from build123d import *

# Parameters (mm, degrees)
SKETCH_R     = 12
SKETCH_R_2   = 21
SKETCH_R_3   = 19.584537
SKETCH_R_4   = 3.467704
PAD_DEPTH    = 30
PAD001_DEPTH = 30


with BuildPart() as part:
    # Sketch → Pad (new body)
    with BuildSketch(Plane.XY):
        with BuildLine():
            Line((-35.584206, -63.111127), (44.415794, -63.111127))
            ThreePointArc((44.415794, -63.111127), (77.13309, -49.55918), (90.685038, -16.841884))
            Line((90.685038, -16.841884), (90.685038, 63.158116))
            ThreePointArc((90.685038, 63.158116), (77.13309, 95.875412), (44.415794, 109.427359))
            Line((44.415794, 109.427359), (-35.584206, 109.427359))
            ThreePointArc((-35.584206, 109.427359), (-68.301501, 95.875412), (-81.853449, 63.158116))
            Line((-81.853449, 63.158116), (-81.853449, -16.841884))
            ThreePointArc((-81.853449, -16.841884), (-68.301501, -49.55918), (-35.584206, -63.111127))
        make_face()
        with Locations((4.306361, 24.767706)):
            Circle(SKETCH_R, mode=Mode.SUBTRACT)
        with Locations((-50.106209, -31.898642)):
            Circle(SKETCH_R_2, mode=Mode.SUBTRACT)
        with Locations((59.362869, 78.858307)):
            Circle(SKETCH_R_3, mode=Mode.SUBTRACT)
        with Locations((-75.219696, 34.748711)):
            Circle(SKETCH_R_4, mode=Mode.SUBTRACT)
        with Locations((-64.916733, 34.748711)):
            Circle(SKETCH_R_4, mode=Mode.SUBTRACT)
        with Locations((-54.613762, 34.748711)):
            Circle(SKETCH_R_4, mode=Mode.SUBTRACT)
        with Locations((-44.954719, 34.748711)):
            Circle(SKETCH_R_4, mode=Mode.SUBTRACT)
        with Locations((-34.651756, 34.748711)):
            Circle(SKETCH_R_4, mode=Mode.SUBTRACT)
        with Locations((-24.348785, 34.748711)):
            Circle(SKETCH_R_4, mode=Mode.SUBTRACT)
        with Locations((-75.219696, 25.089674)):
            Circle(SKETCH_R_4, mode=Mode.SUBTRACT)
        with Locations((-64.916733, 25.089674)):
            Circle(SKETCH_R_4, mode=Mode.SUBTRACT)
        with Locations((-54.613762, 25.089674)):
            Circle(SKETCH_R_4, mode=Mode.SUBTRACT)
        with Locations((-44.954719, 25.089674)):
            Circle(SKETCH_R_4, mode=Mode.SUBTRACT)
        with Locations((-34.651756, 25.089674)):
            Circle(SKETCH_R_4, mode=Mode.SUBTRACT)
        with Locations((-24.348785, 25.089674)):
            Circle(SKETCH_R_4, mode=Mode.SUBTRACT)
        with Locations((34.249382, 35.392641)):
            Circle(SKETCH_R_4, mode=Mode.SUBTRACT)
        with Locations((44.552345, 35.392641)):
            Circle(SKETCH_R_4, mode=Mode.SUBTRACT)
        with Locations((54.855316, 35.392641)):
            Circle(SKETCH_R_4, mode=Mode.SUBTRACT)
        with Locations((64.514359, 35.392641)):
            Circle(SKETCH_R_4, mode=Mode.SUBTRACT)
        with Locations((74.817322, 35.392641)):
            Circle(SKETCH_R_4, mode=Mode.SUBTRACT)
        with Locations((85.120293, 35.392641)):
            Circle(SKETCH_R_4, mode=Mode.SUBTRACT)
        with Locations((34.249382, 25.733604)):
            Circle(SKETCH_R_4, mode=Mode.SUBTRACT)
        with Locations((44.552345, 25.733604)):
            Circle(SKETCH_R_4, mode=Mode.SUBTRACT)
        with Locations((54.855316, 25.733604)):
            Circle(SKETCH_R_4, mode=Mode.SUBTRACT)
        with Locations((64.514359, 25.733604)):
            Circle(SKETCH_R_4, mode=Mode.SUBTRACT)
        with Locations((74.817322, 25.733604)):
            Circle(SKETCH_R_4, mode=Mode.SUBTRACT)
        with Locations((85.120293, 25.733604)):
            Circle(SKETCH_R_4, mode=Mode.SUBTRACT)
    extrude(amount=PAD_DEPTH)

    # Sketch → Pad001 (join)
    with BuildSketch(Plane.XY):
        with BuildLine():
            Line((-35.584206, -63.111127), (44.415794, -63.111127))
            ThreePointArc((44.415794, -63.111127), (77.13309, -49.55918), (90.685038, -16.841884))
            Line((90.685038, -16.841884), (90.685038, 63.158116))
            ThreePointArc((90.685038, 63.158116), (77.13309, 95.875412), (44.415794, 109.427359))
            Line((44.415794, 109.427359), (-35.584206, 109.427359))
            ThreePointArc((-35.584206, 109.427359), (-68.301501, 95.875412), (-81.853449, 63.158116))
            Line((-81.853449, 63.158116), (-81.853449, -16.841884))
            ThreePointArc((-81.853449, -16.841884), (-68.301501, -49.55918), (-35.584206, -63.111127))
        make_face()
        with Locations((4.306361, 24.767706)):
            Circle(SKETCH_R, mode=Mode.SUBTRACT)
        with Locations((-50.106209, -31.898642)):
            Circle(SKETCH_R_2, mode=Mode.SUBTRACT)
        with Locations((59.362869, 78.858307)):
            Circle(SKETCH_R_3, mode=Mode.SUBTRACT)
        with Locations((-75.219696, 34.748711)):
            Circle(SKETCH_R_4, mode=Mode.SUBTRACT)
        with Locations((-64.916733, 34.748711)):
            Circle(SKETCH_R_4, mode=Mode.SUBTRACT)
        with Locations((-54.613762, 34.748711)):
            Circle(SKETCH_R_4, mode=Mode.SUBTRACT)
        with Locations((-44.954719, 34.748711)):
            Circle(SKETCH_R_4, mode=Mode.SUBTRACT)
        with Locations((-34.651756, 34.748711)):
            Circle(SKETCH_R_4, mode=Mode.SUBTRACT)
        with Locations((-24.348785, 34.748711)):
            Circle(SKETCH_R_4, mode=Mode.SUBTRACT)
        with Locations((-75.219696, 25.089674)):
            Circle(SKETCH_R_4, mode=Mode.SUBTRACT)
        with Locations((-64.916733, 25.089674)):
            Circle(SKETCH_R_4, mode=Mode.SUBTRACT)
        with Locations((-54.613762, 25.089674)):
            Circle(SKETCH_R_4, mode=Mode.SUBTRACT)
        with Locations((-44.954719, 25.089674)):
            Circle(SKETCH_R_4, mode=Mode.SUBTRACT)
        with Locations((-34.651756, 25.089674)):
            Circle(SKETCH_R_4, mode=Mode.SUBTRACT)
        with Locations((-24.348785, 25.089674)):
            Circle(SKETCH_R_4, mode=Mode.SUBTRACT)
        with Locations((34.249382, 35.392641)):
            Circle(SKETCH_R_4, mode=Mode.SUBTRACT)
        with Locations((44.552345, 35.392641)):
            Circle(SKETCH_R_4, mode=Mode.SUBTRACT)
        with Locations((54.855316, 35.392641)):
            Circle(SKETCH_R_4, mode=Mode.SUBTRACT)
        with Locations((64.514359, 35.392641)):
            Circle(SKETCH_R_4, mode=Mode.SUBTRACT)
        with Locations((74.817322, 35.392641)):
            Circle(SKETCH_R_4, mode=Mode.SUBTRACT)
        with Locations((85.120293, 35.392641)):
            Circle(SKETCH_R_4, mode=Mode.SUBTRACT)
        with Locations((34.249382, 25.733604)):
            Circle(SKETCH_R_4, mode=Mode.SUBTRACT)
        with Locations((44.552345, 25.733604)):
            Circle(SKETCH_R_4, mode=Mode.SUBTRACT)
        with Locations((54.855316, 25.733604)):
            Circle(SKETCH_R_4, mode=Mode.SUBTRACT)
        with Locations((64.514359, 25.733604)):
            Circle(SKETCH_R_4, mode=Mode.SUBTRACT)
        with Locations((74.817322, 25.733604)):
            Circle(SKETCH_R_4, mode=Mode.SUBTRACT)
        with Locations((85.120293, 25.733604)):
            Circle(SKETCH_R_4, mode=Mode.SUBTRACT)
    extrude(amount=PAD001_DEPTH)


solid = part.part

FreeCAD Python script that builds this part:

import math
import FreeCAD as App
import Part
import Sketcher
from FreeCAD import Vector
Q = App.Units.Quantity

doc = App.newDocument("Part")
body = doc.addObject("PartDesign::Body", "Body")

# Sketch on XY plane
sketch1 = body.newObject("Sketcher::SketchObject", "Sketch")
sketch1.AttachmentSupport = (doc.getObject("XY_Plane"), [""])
sketch1.MapMode = "FlatFace"
sketch1.addGeometry([
    Part.LineSegment(Vector(-35.584206, -63.111127, 0), Vector(44.415794, -63.111127, 0)),  # 0
    Part.ArcOfCircle(Part.Circle(Vector(44.415795, -16.841884, 0), Vector(0, 0, 1), 46.269243), math.radians(-90.000001), math.radians(0)),  # 1
    Part.LineSegment(Vector(90.685038, -16.841884, 0), Vector(90.685038, 63.158116, 0)),  # 2
    Part.ArcOfCircle(Part.Circle(Vector(44.415795, 63.158116, 0), Vector(0, 0, 1), 46.269243), math.radians(0), math.radians(90.000001)),  # 3
    Part.LineSegment(Vector(44.415794, 109.427359, 0), Vector(-35.584206, 109.427359, 0)),  # 4
    Part.ArcOfCircle(Part.Circle(Vector(-35.584206, 63.158116, 0), Vector(0, 0, 1), 46.269243), math.radians(90), math.radians(180)),  # 5
    Part.LineSegment(Vector(-81.853449, 63.158116, 0), Vector(-81.853449, -16.841884, 0)),  # 6
    Part.ArcOfCircle(Part.Circle(Vector(-35.584206, -16.841884, 0), Vector(0, 0, 1), 46.269243), math.radians(180), math.radians(270)),  # 7
    Part.Circle(Vector(-50.106209, -31.898642, 0), Vector(0, 0, 1), 21),  # 8
    Part.Circle(Vector(-75.219696, 25.089674, 0), Vector(0, 0, 1), 3.467704),  # 9
    Part.Circle(Vector(-64.916733, 25.089674, 0), Vector(0, 0, 1), 3.467704),  # 10
    Part.Circle(Vector(-75.219696, 34.748711, 0), Vector(0, 0, 1), 3.467704),  # 11
    Part.Circle(Vector(-64.916733, 34.748711, 0), Vector(0, 0, 1), 3.467704),  # 12
    Part.Circle(Vector(-54.613762, 25.089674, 0), Vector(0, 0, 1), 3.467704),  # 13
    Part.Circle(Vector(-44.954719, 25.089674, 0), Vector(0, 0, 1), 3.467704),  # 14
    Part.Circle(Vector(-54.613762, 34.748711, 0), Vector(0, 0, 1), 3.467704),  # 15
    Part.Circle(Vector(-44.954719, 34.748711, 0), Vector(0, 0, 1), 3.467704),  # 16
    Part.Circle(Vector(-34.651756, 25.089674, 0), Vector(0, 0, 1), 3.467704),  # 17
    Part.Circle(Vector(-24.348785, 25.089674, 0), Vector(0, 0, 1), 3.467704),  # 18
    Part.Circle(Vector(-34.651756, 34.748711, 0), Vector(0, 0, 1), 3.467704),  # 19
    Part.Circle(Vector(-24.348785, 34.748711, 0), Vector(0, 0, 1), 3.467704),  # 20
    Part.Circle(Vector(4.306361, 24.767706, 0), Vector(0, 0, 1), 12),  # 21
    Part.Circle(Vector(34.249382, 25.733604, 0), Vector(0, 0, 1), 3.467704),  # 22
    Part.Circle(Vector(44.552345, 25.733604, 0), Vector(0, 0, 1), 3.467704),  # 23
    Part.Circle(Vector(34.249382, 35.392641, 0), Vector(0, 0, 1), 3.467704),  # 24
    Part.Circle(Vector(44.552345, 35.392641, 0), Vector(0, 0, 1), 3.467704),  # 25
    Part.Circle(Vector(54.855316, 25.733604, 0), Vector(0, 0, 1), 3.467704),  # 26
    Part.Circle(Vector(64.514359, 25.733604, 0), Vector(0, 0, 1), 3.467704),  # 27
    Part.Circle(Vector(54.855316, 35.392641, 0), Vector(0, 0, 1), 3.467704),  # 28
    Part.Circle(Vector(64.514359, 35.392641, 0), Vector(0, 0, 1), 3.467704),  # 29
    Part.Circle(Vector(74.817322, 25.733604, 0), Vector(0, 0, 1), 3.467704),  # 30
    Part.Circle(Vector(85.120293, 25.733604, 0), Vector(0, 0, 1), 3.467704),  # 31
    Part.Circle(Vector(74.817322, 35.392641, 0), Vector(0, 0, 1), 3.467704),  # 32
    Part.Circle(Vector(85.120293, 35.392641, 0), Vector(0, 0, 1), 3.467704),  # 33
    Part.Circle(Vector(59.362869, 78.858307, 0), Vector(0, 0, 1), 19.584537),  # 34
], False)
sketch1.addConstraint([
    Sketcher.Constraint("Tangent", 0, 2, 1, 1),
    Sketcher.Constraint("Tangent", 1, 2, 2, 1),
    Sketcher.Constraint("Tangent", 2, 2, 3, 1),
    Sketcher.Constraint("Tangent", 3, 2, 4, 1),
    Sketcher.Constraint("Tangent", 4, 2, 5, 1),
    Sketcher.Constraint("Tangent", 5, 2, 6, 1),
    Sketcher.Constraint("Tangent", 6, 2, 7, 1),
    Sketcher.Constraint("Tangent", 7, 2, 0, 1),
    Sketcher.Constraint("Horizontal", 0),
    Sketcher.Constraint("Vertical", 2),
    Sketcher.Constraint("Horizontal", 4),
    Sketcher.Constraint("Vertical", 6),
    Sketcher.Constraint("Equal", 1, 3),
    Sketcher.Constraint("Equal", 3, 5),
    Sketcher.Constraint("Equal", 5, 7),
    Sketcher.Constraint("Equal", 9, 10),
    Sketcher.Constraint("Equal", 10, 11),
    Sketcher.Constraint("Equal", 11, 12),
    Sketcher.Constraint("Equal", 12, 13),
    Sketcher.Constraint("Equal", 13, 14),
    Sketcher.Constraint("Equal", 14, 15),
    Sketcher.Constraint("Equal", 15, 16),
    Sketcher.Constraint("Equal", 16, 17),
    Sketcher.Constraint("Equal", 17, 18),
    Sketcher.Constraint("Equal", 18, 19),
    Sketcher.Constraint("Equal", 19, 20),
    Sketcher.Constraint("Equal", 20, 22),
    Sketcher.Constraint("Equal", 22, 23),
    Sketcher.Constraint("Equal", 23, 24),
    Sketcher.Constraint("Equal", 24, 25),
    Sketcher.Constraint("Equal", 25, 26),
    Sketcher.Constraint("Equal", 26, 27),
    Sketcher.Constraint("Equal", 27, 28),
    Sketcher.Constraint("Equal", 28, 29),
    Sketcher.Constraint("Equal", 29, 30),
    Sketcher.Constraint("Equal", 30, 31),
    Sketcher.Constraint("Equal", 31, 32),
    Sketcher.Constraint("Equal", 32, 33),
    Sketcher.Constraint("Horizontal", 9, 3, 10, 3),
    Sketcher.Constraint("Horizontal", 11, 3, 12, 3),
    Sketcher.Constraint("Horizontal", 10, 3, 13, 3),
    Sketcher.Constraint("Horizontal", 13, 3, 14, 3),
    Sketcher.Constraint("Horizontal", 12, 3, 15, 3),
    Sketcher.Constraint("Horizontal", 15, 3, 16, 3),
    Sketcher.Constraint("Horizontal", 14, 3, 17, 3),
    Sketcher.Constraint("Horizontal", 17, 3, 18, 3),
    Sketcher.Constraint("Horizontal", 16, 3, 19, 3),
    Sketcher.Constraint("Horizontal", 19, 3, 20, 3),
    Sketcher.Constraint("Horizontal", 22, 3, 23, 3),
    Sketcher.Constraint("Horizontal", 24, 3, 25, 3),
    Sketcher.Constraint("Horizontal", 23, 3, 26, 3),
    Sketcher.Constraint("Horizontal", 26, 3, 27, 3),
    Sketcher.Constraint("Horizontal", 25, 3, 28, 3),
    Sketcher.Constraint("Horizontal", 28, 3, 29, 3),
    Sketcher.Constraint("Horizontal", 27, 3, 30, 3),
    Sketcher.Constraint("Horizontal", 30, 3, 31, 3),
    Sketcher.Constraint("Horizontal", 29, 3, 32, 3),
    Sketcher.Constraint("Horizontal", 32, 3, 33, 3),
    Sketcher.Constraint("Vertical", 9, 3, 11, 3),
    Sketcher.Constraint("Vertical", 10, 3, 12, 3),
    Sketcher.Constraint("Vertical", 13, 3, 15, 3),
    Sketcher.Constraint("Vertical", 14, 3, 16, 3),
    Sketcher.Constraint("Vertical", 17, 3, 19, 3),
    Sketcher.Constraint("Vertical", 18, 3, 20, 3),
    Sketcher.Constraint("Vertical", 22, 3, 24, 3),
    Sketcher.Constraint("Vertical", 23, 3, 25, 3),
    Sketcher.Constraint("Vertical", 26, 3, 28, 3),
    Sketcher.Constraint("Vertical", 27, 3, 29, 3),
    Sketcher.Constraint("Vertical", 30, 3, 32, 3),
    Sketcher.Constraint("Vertical", 31, 3, 33, 3),
    Sketcher.Constraint("Equal", 4, 2),
    Sketcher.Constraint("Diameter", 8, Q("42 mm")),
    Sketcher.Constraint("Diameter", 21, Q("24 mm")),
    Sketcher.Constraint("DistanceX", 0, 1, 0, 2, Q("80 mm")),
    Sketcher.Constraint("Diameter", 9, Q("6.935408 mm")),
    Sketcher.Constraint("Diameter", 34, Q("39.169074 mm")),
    Sketcher.Constraint("Radius", 1, Q("46.269243 mm")),
    Sketcher.Constraint("DistanceY", 7, 2, 17, 3, Q("88.200801 mm")),
    Sketcher.Constraint("DistanceX", 8, 3, -1, 1, Q("50.106209 mm")),
    Sketcher.Constraint("DistanceY", 8, 3, -1, 1, Q("31.898642 mm")),
    Sketcher.Constraint("DistanceY", -1, 1, 11, 3, Q("34.748711 mm")),
    Sketcher.Constraint("DistanceX", 14, 3, -1, 1, Q("44.954719 mm")),
    Sketcher.Constraint("DistanceX", -1, 1, 21, 3, Q("4.306361 mm")),
    Sketcher.Constraint("DistanceX", -1, 1, 22, 3, Q("34.249382 mm")),
    Sketcher.Constraint("DistanceY", -1, 1, 24, 3, Q("35.392641 mm")),
    Sketcher.Constraint("DistanceX", -1, 1, 27, 3, Q("64.514359 mm")),
    Sketcher.Constraint("DistanceX", -1, 1, 34, 3, Q("59.362869 mm")),
    Sketcher.Constraint("DistanceX", -1, 1, 1, 2, Q("90.685038 mm")),
    Sketcher.Constraint("DistanceY", -1, 1, 3, 2, Q("109.427359 mm")),
    Sketcher.Constraint("DistanceX", 9, 3, 5, 3, Q("39.63549 mm")),
    Sketcher.Constraint("DistanceX", 10, 3, 3, 3, Q("109.332528 mm")),
    Sketcher.Constraint("DistanceX", 10, 3, 13, 3, Q("10.302971 mm")),
    Sketcher.Constraint("DistanceX", 17, 3, 18, 3, Q("10.302971 mm")),
    Sketcher.Constraint("DistanceY", 1, 3, 22, 3, Q("42.575488 mm")),
    Sketcher.Constraint("DistanceX", 3, 3, 23, 3, Q("0.13655 mm")),
    Sketcher.Constraint("DistanceX", 18, 3, 23, 3, Q("68.90113 mm")),
    Sketcher.Constraint("DistanceX", 23, 3, 26, 3, Q("10.302971 mm")),
    Sketcher.Constraint("DistanceX", 30, 3, 31, 3, Q("10.302971 mm")),
    Sketcher.Constraint("DistanceY", 3, 3, 34, 3, Q("15.700191 mm")),
    Sketcher.Constraint("DistanceY", -1, 1, 21, 3, Q("24.767706 mm")),
    Sketcher.Constraint("DistanceX", -1, 1, 30, 3, Q("74.817322 mm")),
])
pad1 = body.newObject("PartDesign::Pad", "Pad")
pad1.Profile = sketch1
pad1.Length = 30

# Sketch on XY plane
sketch2 = body.newObject("Sketcher::SketchObject", "Sketch001")
sketch2.AttachmentSupport = (doc.getObject("XY_Plane"), [""])
sketch2.MapMode = "FlatFace"
sketch2.addGeometry([
    Part.LineSegment(Vector(-35.584206, -63.111127, 0), Vector(44.415794, -63.111127, 0)),  # 0
    Part.ArcOfCircle(Part.Circle(Vector(44.415795, -16.841884, 0), Vector(0, 0, 1), 46.269243), math.radians(-90.000001), math.radians(0)),  # 1
    Part.LineSegment(Vector(90.685038, -16.841884, 0), Vector(90.685038, 63.158116, 0)),  # 2
    Part.ArcOfCircle(Part.Circle(Vector(44.415795, 63.158116, 0), Vector(0, 0, 1), 46.269243), math.radians(0), math.radians(90.000001)),  # 3
    Part.LineSegment(Vector(44.415794, 109.427359, 0), Vector(-35.584206, 109.427359, 0)),  # 4
    Part.ArcOfCircle(Part.Circle(Vector(-35.584206, 63.158116, 0), Vector(0, 0, 1), 46.269243), math.radians(90), math.radians(180)),  # 5
    Part.LineSegment(Vector(-81.853449, 63.158116, 0), Vector(-81.853449, -16.841884, 0)),  # 6
    Part.ArcOfCircle(Part.Circle(Vector(-35.584206, -16.841884, 0), Vector(0, 0, 1), 46.269243), math.radians(180), math.radians(270)),  # 7
    Part.Circle(Vector(-50.106209, -31.898642, 0), Vector(0, 0, 1), 21),  # 8
    Part.Circle(Vector(-75.219696, 25.089674, 0), Vector(0, 0, 1), 3.467704),  # 9
    Part.Circle(Vector(-64.916733, 25.089674, 0), Vector(0, 0, 1), 3.467704),  # 10
    Part.Circle(Vector(-75.219696, 34.748711, 0), Vector(0, 0, 1), 3.467704),  # 11
    Part.Circle(Vector(-64.916733, 34.748711, 0), Vector(0, 0, 1), 3.467704),  # 12
    Part.Circle(Vector(-54.613762, 25.089674, 0), Vector(0, 0, 1), 3.467704),  # 13
    Part.Circle(Vector(-44.954719, 25.089674, 0), Vector(0, 0, 1), 3.467704),  # 14
    Part.Circle(Vector(-54.613762, 34.748711, 0), Vector(0, 0, 1), 3.467704),  # 15
    Part.Circle(Vector(-44.954719, 34.748711, 0), Vector(0, 0, 1), 3.467704),  # 16
    Part.Circle(Vector(-34.651756, 25.089674, 0), Vector(0, 0, 1), 3.467704),  # 17
    Part.Circle(Vector(-24.348785, 25.089674, 0), Vector(0, 0, 1), 3.467704),  # 18
    Part.Circle(Vector(-34.651756, 34.748711, 0), Vector(0, 0, 1), 3.467704),  # 19
    Part.Circle(Vector(-24.348785, 34.748711, 0), Vector(0, 0, 1), 3.467704),  # 20
    Part.Circle(Vector(4.306361, 24.767706, 0), Vector(0, 0, 1), 12),  # 21
    Part.Circle(Vector(34.249382, 25.733604, 0), Vector(0, 0, 1), 3.467704),  # 22
    Part.Circle(Vector(44.552345, 25.733604, 0), Vector(0, 0, 1), 3.467704),  # 23
    Part.Circle(Vector(34.249382, 35.392641, 0), Vector(0, 0, 1), 3.467704),  # 24
    Part.Circle(Vector(44.552345, 35.392641, 0), Vector(0, 0, 1), 3.467704),  # 25
    Part.Circle(Vector(54.855316, 25.733604, 0), Vector(0, 0, 1), 3.467704),  # 26
    Part.Circle(Vector(64.514359, 25.733604, 0), Vector(0, 0, 1), 3.467704),  # 27
    Part.Circle(Vector(54.855316, 35.392641, 0), Vector(0, 0, 1), 3.467704),  # 28
    Part.Circle(Vector(64.514359, 35.392641, 0), Vector(0, 0, 1), 3.467704),  # 29
    Part.Circle(Vector(74.817322, 25.733604, 0), Vector(0, 0, 1), 3.467704),  # 30
    Part.Circle(Vector(85.120293, 25.733604, 0), Vector(0, 0, 1), 3.467704),  # 31
    Part.Circle(Vector(74.817322, 35.392641, 0), Vector(0, 0, 1), 3.467704),  # 32
    Part.Circle(Vector(85.120293, 35.392641, 0), Vector(0, 0, 1), 3.467704),  # 33
    Part.Circle(Vector(59.362869, 78.858307, 0), Vector(0, 0, 1), 19.584537),  # 34
], False)
sketch2.addConstraint([
    Sketcher.Constraint("Tangent", 0, 2, 1, 1),
    Sketcher.Constraint("Tangent", 1, 2, 2, 1),
    Sketcher.Constraint("Tangent", 2, 2, 3, 1),
    Sketcher.Constraint("Tangent", 3, 2, 4, 1),
    Sketcher.Constraint("Tangent", 4, 2, 5, 1),
    Sketcher.Constraint("Tangent", 5, 2, 6, 1),
    Sketcher.Constraint("Tangent", 6, 2, 7, 1),
    Sketcher.Constraint("Tangent", 7, 2, 0, 1),
    Sketcher.Constraint("Horizontal", 0),
    Sketcher.Constraint("Vertical", 2),
    Sketcher.Constraint("Horizontal", 4),
    Sketcher.Constraint("Vertical", 6),
    Sketcher.Constraint("Equal", 1, 3),
    Sketcher.Constraint("Equal", 3, 5),
    Sketcher.Constraint("Equal", 5, 7),
    Sketcher.Constraint("Equal", 9, 10),
    Sketcher.Constraint("Equal", 10, 11),
    Sketcher.Constraint("Equal", 11, 12),
    Sketcher.Constraint("Equal", 12, 13),
    Sketcher.Constraint("Equal", 13, 14),
    Sketcher.Constraint("Equal", 14, 15),
    Sketcher.Constraint("Equal", 15, 16),
    Sketcher.Constraint("Equal", 16, 17),
    Sketcher.Constraint("Equal", 17, 18),
    Sketcher.Constraint("Equal", 18, 19),
    Sketcher.Constraint("Equal", 19, 20),
    Sketcher.Constraint("Equal", 20, 22),
    Sketcher.Constraint("Equal", 22, 23),
    Sketcher.Constraint("Equal", 23, 24),
    Sketcher.Constraint("Equal", 24, 25),
    Sketcher.Constraint("Equal", 25, 26),
    Sketcher.Constraint("Equal", 26, 27),
    Sketcher.Constraint("Equal", 27, 28),
    Sketcher.Constraint("Equal", 28, 29),
    Sketcher.Constraint("Equal", 29, 30),
    Sketcher.Constraint("Equal", 30, 31),
    Sketcher.Constraint("Equal", 31, 32),
    Sketcher.Constraint("Equal", 32, 33),
    Sketcher.Constraint("Horizontal", 9, 3, 10, 3),
    Sketcher.Constraint("Horizontal", 11, 3, 12, 3),
    Sketcher.Constraint("Horizontal", 10, 3, 13, 3),
    Sketcher.Constraint("Horizontal", 13, 3, 14, 3),
    Sketcher.Constraint("Horizontal", 12, 3, 15, 3),
    Sketcher.Constraint("Horizontal", 15, 3, 16, 3),
    Sketcher.Constraint("Horizontal", 14, 3, 17, 3),
    Sketcher.Constraint("Horizontal", 17, 3, 18, 3),
    Sketcher.Constraint("Horizontal", 16, 3, 19, 3),
    Sketcher.Constraint("Horizontal", 19, 3, 20, 3),
    Sketcher.Constraint("Horizontal", 22, 3, 23, 3),
    Sketcher.Constraint("Horizontal", 24, 3, 25, 3),
    Sketcher.Constraint("Horizontal", 23, 3, 26, 3),
    Sketcher.Constraint("Horizontal", 26, 3, 27, 3),
    Sketcher.Constraint("Horizontal", 25, 3, 28, 3),
    Sketcher.Constraint("Horizontal", 28, 3, 29, 3),
    Sketcher.Constraint("Horizontal", 27, 3, 30, 3),
    Sketcher.Constraint("Horizontal", 30, 3, 31, 3),
    Sketcher.Constraint("Horizontal", 29, 3, 32, 3),
    Sketcher.Constraint("Horizontal", 32, 3, 33, 3),
    Sketcher.Constraint("Vertical", 9, 3, 11, 3),
    Sketcher.Constraint("Vertical", 10, 3, 12, 3),
    Sketcher.Constraint("Vertical", 13, 3, 15, 3),
    Sketcher.Constraint("Vertical", 14, 3, 16, 3),
    Sketcher.Constraint("Vertical", 17, 3, 19, 3),
    Sketcher.Constraint("Vertical", 18, 3, 20, 3),
    Sketcher.Constraint("Vertical", 22, 3, 24, 3),
    Sketcher.Constraint("Vertical", 23, 3, 25, 3),
    Sketcher.Constraint("Vertical", 26, 3, 28, 3),
    Sketcher.Constraint("Vertical", 27, 3, 29, 3),
    Sketcher.Constraint("Vertical", 30, 3, 32, 3),
    Sketcher.Constraint("Vertical", 31, 3, 33, 3),
    Sketcher.Constraint("Equal", 4, 2),
    Sketcher.Constraint("Diameter", 8, Q("42 mm")),
    Sketcher.Constraint("Diameter", 21, Q("24 mm")),
    Sketcher.Constraint("DistanceX", 0, 1, 0, 2, Q("80 mm")),
    Sketcher.Constraint("Diameter", 9, Q("6.935408 mm")),
    Sketcher.Constraint("Diameter", 34, Q("39.169074 mm")),
    Sketcher.Constraint("Radius", 1, Q("46.269243 mm")),
    Sketcher.Constraint("DistanceY", 7, 2, 17, 3, Q("88.200801 mm")),
    Sketcher.Constraint("DistanceX", 8, 3, -1, 1, Q("50.106209 mm")),
    Sketcher.Constraint("DistanceY", 8, 3, -1, 1, Q("31.898642 mm")),
    Sketcher.Constraint("DistanceY", -1, 1, 11, 3, Q("34.748711 mm")),
    Sketcher.Constraint("DistanceX", 14, 3, -1, 1, Q("44.954719 mm")),
    Sketcher.Constraint("DistanceX", -1, 1, 21, 3, Q("4.306361 mm")),
    Sketcher.Constraint("DistanceX", -1, 1, 22, 3, Q("34.249382 mm")),
    Sketcher.Constraint("DistanceY", -1, 1, 24, 3, Q("35.392641 mm")),
    Sketcher.Constraint("DistanceX", -1, 1, 27, 3, Q("64.514359 mm")),
    Sketcher.Constraint("DistanceX", -1, 1, 34, 3, Q("59.362869 mm")),
    Sketcher.Constraint("DistanceX", -1, 1, 1, 2, Q("90.685038 mm")),
    Sketcher.Constraint("DistanceY", -1, 1, 3, 2, Q("109.427359 mm")),
    Sketcher.Constraint("DistanceX", 9, 3, 5, 3, Q("39.63549 mm")),
    Sketcher.Constraint("DistanceX", 10, 3, 3, 3, Q("109.332528 mm")),
    Sketcher.Constraint("DistanceX", 10, 3, 13, 3, Q("10.302971 mm")),
    Sketcher.Constraint("DistanceX", 17, 3, 18, 3, Q("10.302971 mm")),
    Sketcher.Constraint("DistanceY", 1, 3, 22, 3, Q("42.575488 mm")),
    Sketcher.Constraint("DistanceX", 3, 3, 23, 3, Q("0.13655 mm")),
    Sketcher.Constraint("DistanceX", 18, 3, 23, 3, Q("68.90113 mm")),
    Sketcher.Constraint("DistanceX", 23, 3, 26, 3, Q("10.302971 mm")),
    Sketcher.Constraint("DistanceX", 30, 3, 31, 3, Q("10.302971 mm")),
    Sketcher.Constraint("DistanceY", 3, 3, 34, 3, Q("15.700191 mm")),
    Sketcher.Constraint("DistanceY", -1, 1, 21, 3, Q("24.767706 mm")),
    Sketcher.Constraint("DistanceX", -1, 1, 30, 3, Q("74.817322 mm")),
])
pad2 = body.newObject("PartDesign::Pad", "Pad001")
pad2.Profile = sketch2
pad2.Length = 30

doc.recompute()
